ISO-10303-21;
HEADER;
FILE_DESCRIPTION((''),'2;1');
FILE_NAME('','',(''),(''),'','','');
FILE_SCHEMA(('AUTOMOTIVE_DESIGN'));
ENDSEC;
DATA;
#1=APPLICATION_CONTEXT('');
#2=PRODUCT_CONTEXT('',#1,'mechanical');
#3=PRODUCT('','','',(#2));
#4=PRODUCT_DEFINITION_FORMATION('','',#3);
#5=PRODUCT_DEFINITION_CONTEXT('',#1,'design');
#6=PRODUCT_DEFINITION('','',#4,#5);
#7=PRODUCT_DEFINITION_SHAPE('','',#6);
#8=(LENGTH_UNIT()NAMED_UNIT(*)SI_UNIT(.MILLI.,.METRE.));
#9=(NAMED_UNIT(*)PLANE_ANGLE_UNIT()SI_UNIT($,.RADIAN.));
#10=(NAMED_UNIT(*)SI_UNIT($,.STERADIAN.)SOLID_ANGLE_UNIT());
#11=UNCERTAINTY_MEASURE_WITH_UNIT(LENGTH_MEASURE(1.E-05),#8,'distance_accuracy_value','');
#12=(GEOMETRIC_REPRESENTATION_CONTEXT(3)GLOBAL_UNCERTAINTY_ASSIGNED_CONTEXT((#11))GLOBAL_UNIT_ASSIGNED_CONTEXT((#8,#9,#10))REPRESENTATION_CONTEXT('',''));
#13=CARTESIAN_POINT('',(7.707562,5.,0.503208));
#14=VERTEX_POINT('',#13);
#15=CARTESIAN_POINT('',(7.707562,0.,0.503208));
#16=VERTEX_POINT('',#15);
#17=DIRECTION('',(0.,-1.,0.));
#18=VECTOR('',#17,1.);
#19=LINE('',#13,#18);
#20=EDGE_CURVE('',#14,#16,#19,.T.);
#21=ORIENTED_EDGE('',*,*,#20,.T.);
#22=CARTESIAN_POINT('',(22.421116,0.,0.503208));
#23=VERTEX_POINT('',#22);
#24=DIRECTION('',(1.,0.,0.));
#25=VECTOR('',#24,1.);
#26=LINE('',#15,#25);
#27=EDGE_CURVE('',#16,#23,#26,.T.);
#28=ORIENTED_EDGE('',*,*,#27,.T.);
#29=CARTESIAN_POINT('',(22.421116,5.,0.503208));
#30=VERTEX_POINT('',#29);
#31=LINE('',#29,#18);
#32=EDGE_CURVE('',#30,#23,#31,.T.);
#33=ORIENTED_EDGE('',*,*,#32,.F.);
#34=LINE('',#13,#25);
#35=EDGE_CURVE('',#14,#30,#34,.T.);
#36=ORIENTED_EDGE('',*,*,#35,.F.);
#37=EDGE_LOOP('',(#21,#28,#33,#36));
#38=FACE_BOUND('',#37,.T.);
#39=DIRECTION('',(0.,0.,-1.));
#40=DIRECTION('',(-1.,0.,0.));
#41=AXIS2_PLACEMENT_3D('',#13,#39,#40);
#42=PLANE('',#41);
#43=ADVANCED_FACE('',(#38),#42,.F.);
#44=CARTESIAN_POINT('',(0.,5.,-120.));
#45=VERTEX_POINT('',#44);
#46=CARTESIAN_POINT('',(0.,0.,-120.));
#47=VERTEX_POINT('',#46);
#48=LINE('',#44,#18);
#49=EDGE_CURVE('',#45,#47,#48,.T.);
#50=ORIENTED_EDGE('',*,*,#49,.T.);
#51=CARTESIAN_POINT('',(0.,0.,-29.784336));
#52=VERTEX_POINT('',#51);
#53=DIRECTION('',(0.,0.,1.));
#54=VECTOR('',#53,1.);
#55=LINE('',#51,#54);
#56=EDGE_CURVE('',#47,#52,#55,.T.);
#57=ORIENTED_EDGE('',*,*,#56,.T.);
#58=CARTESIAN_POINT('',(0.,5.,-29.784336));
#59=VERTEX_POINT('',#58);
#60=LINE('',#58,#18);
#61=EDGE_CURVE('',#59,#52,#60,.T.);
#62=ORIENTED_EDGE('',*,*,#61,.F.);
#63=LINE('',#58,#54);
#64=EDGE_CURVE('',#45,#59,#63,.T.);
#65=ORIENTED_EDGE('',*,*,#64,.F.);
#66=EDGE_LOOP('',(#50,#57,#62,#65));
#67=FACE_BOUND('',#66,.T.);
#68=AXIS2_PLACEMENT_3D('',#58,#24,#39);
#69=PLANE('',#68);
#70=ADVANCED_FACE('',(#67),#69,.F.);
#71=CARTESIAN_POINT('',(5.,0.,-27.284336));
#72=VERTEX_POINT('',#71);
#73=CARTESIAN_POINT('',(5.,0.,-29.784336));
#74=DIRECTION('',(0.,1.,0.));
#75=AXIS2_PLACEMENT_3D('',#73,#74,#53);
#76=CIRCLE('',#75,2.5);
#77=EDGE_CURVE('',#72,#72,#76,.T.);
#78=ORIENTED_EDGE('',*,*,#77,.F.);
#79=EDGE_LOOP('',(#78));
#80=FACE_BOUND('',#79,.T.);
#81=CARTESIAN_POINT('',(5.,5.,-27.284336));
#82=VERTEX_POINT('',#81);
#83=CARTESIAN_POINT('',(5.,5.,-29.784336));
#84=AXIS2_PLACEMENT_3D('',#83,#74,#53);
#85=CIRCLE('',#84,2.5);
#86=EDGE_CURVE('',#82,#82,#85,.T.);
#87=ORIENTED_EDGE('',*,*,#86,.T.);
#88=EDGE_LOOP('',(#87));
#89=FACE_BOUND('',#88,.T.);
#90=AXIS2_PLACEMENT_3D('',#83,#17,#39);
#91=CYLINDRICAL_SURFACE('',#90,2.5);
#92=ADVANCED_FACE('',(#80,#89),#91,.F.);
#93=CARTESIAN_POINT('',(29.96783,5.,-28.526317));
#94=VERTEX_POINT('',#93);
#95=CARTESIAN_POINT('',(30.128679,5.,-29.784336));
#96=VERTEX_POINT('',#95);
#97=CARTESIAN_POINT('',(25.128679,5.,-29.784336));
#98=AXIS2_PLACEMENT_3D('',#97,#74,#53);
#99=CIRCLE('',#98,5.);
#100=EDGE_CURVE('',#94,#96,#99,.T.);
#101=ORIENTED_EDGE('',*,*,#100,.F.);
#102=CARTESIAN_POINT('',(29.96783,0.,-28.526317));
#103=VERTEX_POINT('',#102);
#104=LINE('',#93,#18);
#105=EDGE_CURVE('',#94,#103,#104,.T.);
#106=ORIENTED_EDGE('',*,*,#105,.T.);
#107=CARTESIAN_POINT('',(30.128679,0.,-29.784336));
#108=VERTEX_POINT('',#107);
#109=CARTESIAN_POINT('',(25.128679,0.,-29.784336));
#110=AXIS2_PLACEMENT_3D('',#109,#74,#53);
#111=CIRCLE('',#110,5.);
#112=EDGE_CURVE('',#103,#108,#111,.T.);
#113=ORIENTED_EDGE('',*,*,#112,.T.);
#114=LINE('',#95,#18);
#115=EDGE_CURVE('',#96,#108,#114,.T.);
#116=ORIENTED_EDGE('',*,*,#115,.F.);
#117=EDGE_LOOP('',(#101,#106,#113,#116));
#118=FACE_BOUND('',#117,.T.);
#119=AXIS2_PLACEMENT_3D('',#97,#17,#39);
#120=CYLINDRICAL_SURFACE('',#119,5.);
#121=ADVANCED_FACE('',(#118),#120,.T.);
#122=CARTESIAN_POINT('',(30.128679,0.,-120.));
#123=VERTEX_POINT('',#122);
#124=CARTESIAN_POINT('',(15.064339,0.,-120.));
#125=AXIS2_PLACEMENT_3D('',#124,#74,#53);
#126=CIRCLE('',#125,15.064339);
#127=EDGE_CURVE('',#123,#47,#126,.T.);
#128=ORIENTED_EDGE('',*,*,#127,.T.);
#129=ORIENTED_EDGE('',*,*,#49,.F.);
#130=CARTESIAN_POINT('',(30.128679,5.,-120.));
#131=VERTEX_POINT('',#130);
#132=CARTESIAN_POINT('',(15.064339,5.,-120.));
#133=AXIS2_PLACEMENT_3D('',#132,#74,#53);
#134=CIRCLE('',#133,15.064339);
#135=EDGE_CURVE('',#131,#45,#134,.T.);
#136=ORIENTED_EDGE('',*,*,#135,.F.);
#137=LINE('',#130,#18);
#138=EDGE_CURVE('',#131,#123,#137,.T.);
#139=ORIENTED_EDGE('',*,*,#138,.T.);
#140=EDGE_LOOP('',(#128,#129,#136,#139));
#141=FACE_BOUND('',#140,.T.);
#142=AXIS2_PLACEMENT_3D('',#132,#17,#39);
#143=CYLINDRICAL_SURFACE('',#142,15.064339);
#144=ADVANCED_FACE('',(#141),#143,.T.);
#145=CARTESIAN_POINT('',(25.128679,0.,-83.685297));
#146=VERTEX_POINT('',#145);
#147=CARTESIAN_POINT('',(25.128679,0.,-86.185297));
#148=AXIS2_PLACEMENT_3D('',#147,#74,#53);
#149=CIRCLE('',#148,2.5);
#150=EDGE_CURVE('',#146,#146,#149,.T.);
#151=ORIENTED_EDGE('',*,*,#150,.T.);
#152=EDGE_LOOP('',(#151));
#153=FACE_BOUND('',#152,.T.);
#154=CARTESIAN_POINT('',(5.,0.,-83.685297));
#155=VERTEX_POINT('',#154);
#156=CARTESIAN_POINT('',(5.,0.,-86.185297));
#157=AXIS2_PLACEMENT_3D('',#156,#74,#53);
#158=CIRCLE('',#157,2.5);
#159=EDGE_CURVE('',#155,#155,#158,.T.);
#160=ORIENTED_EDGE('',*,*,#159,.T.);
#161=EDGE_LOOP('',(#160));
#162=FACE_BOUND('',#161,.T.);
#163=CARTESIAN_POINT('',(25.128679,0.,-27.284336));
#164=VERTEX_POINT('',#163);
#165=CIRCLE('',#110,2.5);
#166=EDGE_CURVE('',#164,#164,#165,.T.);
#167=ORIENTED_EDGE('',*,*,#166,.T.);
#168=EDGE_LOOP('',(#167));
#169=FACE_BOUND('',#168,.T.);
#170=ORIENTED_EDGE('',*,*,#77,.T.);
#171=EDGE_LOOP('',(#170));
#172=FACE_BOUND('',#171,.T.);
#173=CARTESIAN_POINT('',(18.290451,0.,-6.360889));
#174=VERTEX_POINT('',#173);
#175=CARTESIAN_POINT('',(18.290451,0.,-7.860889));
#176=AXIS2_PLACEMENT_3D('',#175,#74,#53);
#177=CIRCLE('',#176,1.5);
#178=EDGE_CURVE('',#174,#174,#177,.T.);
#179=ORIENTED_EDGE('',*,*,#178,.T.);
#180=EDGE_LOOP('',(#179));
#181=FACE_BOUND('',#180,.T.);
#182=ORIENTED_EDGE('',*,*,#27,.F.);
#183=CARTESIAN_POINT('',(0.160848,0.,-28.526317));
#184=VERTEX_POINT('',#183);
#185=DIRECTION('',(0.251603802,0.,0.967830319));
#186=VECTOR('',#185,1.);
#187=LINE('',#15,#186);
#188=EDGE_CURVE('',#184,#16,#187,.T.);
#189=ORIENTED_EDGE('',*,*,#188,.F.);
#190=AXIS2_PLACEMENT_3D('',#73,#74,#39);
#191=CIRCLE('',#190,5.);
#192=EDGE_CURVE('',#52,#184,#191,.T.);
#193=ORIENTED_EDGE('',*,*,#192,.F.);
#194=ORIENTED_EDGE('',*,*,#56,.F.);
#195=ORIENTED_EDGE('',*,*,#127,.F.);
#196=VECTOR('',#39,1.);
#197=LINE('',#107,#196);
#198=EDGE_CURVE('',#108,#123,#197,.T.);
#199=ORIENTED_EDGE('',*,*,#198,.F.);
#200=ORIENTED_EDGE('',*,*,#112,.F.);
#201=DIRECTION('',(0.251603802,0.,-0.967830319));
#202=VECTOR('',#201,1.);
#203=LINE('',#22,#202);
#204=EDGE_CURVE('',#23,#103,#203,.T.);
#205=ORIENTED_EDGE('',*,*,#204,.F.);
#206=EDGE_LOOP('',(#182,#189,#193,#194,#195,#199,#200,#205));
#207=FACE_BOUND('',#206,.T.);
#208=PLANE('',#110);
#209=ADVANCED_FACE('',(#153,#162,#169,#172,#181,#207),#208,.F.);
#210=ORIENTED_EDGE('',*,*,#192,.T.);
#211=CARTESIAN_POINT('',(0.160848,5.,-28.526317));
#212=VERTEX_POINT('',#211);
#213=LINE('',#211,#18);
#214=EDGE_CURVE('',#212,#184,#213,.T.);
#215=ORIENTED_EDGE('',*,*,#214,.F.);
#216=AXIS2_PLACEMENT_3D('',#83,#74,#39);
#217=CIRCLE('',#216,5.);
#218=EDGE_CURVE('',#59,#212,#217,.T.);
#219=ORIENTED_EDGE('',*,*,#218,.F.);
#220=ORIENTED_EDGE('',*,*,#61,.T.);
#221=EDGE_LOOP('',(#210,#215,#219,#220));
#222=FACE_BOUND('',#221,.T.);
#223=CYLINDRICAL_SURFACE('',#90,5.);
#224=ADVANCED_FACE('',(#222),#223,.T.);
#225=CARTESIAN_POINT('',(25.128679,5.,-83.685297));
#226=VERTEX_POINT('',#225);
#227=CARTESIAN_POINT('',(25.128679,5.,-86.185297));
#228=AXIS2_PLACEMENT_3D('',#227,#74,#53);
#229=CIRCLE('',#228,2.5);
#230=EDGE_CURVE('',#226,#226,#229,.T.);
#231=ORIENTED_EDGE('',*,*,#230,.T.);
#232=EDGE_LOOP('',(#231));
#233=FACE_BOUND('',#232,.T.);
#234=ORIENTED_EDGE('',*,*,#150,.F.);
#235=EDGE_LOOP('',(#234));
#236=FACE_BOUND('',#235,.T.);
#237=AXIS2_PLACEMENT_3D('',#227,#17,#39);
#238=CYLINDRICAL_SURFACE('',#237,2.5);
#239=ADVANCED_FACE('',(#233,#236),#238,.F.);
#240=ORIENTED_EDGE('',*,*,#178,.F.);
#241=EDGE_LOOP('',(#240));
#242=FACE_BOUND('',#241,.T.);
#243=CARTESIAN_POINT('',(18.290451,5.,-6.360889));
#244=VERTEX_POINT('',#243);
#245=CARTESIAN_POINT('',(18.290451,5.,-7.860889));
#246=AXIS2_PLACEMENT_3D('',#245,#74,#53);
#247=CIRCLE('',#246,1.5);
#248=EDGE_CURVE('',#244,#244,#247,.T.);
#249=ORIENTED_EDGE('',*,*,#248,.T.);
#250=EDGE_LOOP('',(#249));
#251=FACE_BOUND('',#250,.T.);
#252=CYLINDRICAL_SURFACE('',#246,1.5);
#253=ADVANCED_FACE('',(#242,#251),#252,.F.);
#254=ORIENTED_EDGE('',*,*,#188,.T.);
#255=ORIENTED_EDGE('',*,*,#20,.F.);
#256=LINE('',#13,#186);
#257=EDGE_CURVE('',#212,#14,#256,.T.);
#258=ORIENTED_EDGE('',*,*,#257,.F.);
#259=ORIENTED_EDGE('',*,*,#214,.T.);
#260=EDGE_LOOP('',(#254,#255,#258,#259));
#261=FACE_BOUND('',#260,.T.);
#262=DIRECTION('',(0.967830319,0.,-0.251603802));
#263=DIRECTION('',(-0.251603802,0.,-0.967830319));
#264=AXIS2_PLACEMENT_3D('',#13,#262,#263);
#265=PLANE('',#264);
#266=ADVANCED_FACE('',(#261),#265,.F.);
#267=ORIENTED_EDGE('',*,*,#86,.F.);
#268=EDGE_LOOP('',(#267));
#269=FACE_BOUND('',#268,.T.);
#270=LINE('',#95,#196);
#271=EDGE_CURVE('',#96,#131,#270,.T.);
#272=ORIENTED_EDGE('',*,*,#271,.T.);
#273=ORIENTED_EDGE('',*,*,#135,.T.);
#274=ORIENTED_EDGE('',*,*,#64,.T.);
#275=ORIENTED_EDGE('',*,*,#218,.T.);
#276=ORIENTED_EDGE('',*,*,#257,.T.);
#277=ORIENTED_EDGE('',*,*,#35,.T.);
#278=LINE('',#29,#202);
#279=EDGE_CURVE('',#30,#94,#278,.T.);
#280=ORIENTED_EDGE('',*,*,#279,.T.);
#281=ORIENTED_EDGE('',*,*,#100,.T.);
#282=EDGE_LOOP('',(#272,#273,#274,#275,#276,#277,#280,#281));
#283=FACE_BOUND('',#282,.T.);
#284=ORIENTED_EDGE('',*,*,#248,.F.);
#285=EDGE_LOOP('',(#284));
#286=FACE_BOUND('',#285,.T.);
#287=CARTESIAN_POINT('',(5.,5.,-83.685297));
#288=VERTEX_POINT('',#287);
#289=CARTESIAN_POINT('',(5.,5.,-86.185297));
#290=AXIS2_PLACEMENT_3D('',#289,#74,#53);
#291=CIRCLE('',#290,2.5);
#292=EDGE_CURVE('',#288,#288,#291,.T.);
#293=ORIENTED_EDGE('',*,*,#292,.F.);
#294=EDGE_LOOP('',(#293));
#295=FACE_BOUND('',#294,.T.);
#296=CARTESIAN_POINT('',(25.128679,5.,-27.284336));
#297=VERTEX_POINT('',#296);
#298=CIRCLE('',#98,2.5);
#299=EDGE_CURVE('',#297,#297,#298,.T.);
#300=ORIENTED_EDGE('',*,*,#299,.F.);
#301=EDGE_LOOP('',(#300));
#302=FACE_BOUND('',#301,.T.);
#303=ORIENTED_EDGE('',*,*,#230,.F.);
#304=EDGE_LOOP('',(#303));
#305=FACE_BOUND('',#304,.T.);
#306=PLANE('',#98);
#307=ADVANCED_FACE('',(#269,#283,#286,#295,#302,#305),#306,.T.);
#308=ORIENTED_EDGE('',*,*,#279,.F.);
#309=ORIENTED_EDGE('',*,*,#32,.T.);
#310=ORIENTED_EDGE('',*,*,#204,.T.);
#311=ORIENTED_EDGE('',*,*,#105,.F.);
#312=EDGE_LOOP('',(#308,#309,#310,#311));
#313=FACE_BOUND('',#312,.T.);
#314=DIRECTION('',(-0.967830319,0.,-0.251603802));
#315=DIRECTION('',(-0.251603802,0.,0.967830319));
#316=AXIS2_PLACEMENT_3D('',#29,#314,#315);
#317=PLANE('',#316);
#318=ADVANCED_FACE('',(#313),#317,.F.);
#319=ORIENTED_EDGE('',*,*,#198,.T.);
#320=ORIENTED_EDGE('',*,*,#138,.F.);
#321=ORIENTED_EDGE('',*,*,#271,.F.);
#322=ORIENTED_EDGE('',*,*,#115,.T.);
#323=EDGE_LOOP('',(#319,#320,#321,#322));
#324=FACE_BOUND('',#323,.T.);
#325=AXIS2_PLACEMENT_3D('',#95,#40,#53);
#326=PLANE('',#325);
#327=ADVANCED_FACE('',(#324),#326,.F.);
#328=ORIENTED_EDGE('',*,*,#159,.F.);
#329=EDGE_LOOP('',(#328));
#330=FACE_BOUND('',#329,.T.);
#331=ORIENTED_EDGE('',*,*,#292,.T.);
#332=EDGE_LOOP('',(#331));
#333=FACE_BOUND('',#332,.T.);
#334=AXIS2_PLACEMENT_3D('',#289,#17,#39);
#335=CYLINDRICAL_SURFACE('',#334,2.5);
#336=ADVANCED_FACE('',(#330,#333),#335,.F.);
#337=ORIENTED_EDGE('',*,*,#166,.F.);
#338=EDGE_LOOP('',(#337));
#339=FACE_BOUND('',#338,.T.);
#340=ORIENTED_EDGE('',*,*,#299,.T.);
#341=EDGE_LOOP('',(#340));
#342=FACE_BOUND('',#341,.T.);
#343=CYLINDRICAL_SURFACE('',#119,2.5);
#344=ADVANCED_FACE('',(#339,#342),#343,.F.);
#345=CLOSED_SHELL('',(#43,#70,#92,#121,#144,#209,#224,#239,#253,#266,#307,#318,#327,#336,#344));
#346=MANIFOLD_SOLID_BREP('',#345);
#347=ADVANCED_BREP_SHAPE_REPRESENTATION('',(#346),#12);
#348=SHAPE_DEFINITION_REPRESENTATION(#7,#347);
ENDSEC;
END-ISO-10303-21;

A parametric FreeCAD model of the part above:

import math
import FreeCAD as App
import Part
import Sketcher

doc = App.newDocument("Part")
params = doc.addObject("Spreadsheet::Sheet", "Params")
for row, (alias, value) in enumerate([
    ("sketch1_diameter", "5 mm"),
    ("sketch1_diameter2", "5 mm"),
    ("sketch1_diameter3", "5 mm"),
    ("sketch1_diameter4", "5 mm"),
    ("sketch1_radius", "5 mm"),
    ("pad1_length", "5 mm"),
    ("sketch2_diameter", "3 mm"),
    ("hole_diameter", "3 mm"),
], start=1):
    params.set(f"A{row}", alias)
    params.set(f"B{row}", "=" + value)
    params.setAlias(f"B{row}", alias)

body = doc.addObject("PartDesign::Body", "Body")

sketch1 = doc.addObject("Sketcher::SketchObject", "Sketch")
body.addObject(sketch1)
sketch1.AttachmentSupport = (doc.XZ_Plane, [""])
sketch1.MapMode = "FlatFace"
sketch1.addGeometry([
    Part.LineSegment(App.Vector(0.160848, -28.526317, 0), App.Vector(7.707562, 0.503208, 0)),
    Part.LineSegment(App.Vector(7.707562, 0.503208, 0), App.Vector(22.421116, 0.503208, 0)),
    Part.LineSegment(App.Vector(22.421116, 0.503208, 0), App.Vector(29.96783, -28.526317, 0)),
    Part.ArcOfCircle(Part.Circle(App.Vector(25.128679, -29.784336, 0), App.Vector(0, 0, 1), 5), math.radians(0), math.radians(14.572437)),
    Part.LineSegment(App.Vector(30.128679, -29.784336, 0), App.Vector(30.128679, -120, 0)),
    Part.ArcOfCircle(Part.Circle(App.Vector(15.064339, -120, 0), App.Vector(0, 0, 1), 15.064339), math.radians(180), math.radians(360)),
    Part.LineSegment(App.Vector(0, -120, 0), App.Vector(0, -29.784336, 0)),
    Part.ArcOfCircle(Part.Circle(App.Vector(5, -29.784336, 0), App.Vector(0, 0, 1), 5), math.radians(165.427563), math.radians(180)),
    Part.Circle(App.Vector(25.128679, -29.784336, 0), App.Vector(0, 0, 1), 2.5),
    Part.Circle(App.Vector(5, -29.784336, 0), App.Vector(0, 0, 1), 2.5),
    Part.Circle(App.Vector(25.128679, -86.185297, 0), App.Vector(0, 0, 1), 2.5),
    Part.Circle(App.Vector(5, -86.185297, 0), App.Vector(0, 0, 1), 2.5),
], False)
sketch1.addConstraint([
    Sketcher.Constraint("Coincident", 0, 2, 1, 1),
    Sketcher.Constraint("Coincident", 1, 2, 2, 1),
    Sketcher.Constraint("Coincident", 2, 2, 3, 2),
    Sketcher.Constraint("Coincident", 3, 1, 4, 1),
    Sketcher.Constraint("Coincident", 4, 2, 5, 2),
    Sketcher.Constraint("Coincident", 5, 1, 6, 1),
    Sketcher.Constraint("Coincident", 6, 2, 7, 2),
    Sketcher.Constraint("Coincident", 7, 1, 0, 1),
    Sketcher.Constraint("Horizontal", 1),
    Sketcher.Constraint("Vertical", 4),
    Sketcher.Constraint("Vertical", 6),
    Sketcher.Constraint("Coincident", 8, 3, 3, 3),
    Sketcher.Constraint("Coincident", 9, 3, 7, 3),
    Sketcher.Constraint("PointOnObject", 5, 1, -2),
    Sketcher.Constraint("Diameter", 8, 5.0),
    Sketcher.Constraint("Diameter", 9, 5.0),
    Sketcher.Constraint("Diameter", 10, 5.0),
    Sketcher.Constraint("Diameter", 11, 5.0),
    Sketcher.Constraint("Radius", 3, 5.0),
    Sketcher.Constraint("Radius", 7, 5.0),
    Sketcher.Constraint("DistanceY", 5, 3, -1, 1, 120.0),
    Sketcher.Constraint("DistanceX", -1, 1, 11, 3, 5.0),
    Sketcher.Constraint("DistanceY", 4, 2, -1, 1, 120.0),
    Sketcher.Constraint("DistanceY", 5, 1, -1, 1, 120.0),
    Sketcher.Constraint("DistanceX", 10, 3, 4, 2, 5.0),
    Sketcher.Constraint("Radius", 5, 15.064339),
    Sketcher.Constraint("DistanceX", 1, 1, 1, 2, 14.713554),
    Sketcher.Constraint("DistanceY", 4, 2, 4, 1, 90.215664),
    Sketcher.Constraint("DistanceY", 6, 1, 6, 2, 90.215664),
    Sketcher.Constraint("DistanceX", -1, 1, 2, 2, 29.96783),
    Sketcher.Constraint("DistanceX", -1, 1, 7, 1, 0.160848),
    Sketcher.Constraint("DistanceY", 10, 3, 3, 3, 56.400961),
    Sketcher.Constraint("DistanceY", 10, 3, 7, 3, 56.400961),
    Sketcher.Constraint("DistanceY", 11, 3, 7, 3, 56.400961),
    Sketcher.Constraint("DistanceY", 3, 1, 2, 2, 1.258019),
    Sketcher.Constraint("Distance", 0, 29.994436),
    Sketcher.Constraint("Distance", 2, 29.994436),
])
sketch1.setExpression("Constraints[14]", "Params.sketch1_diameter")
sketch1.setExpression("Constraints[15]", "Params.sketch1_diameter2")
sketch1.setExpression("Constraints[16]", "Params.sketch1_diameter3")
sketch1.setExpression("Constraints[17]", "Params.sketch1_diameter4")
sketch1.setExpression("Constraints[18]", "Params.sketch1_radius")
pad1 = doc.addObject("PartDesign::Pad", "Pad")
body.addObject(pad1)
pad1.Profile = sketch1
pad1.setExpression("Length", "Params.pad1_length")
pad1.Reversed = True

sketch2 = doc.addObject("Sketcher::SketchObject", "Sketch001")
body.addObject(sketch2)
sketch2.AttachmentSupport = (doc.XZ_Plane, [""])
sketch2.MapMode = "FlatFace"
sketch2.AttachmentOffset = App.Placement(App.Vector(0, 0, -5), App.Rotation())
sketch2.addGeometry(Part.Circle(App.Vector(18.3, -7.9, 0), App.Vector(0, 0, 1), 1.5), False)
sketch2.addConstraint([
    Sketcher.Constraint("Diameter", 0, 3.0),
    Sketcher.Constraint("DistanceX", -1, 1, 0, 3, 18.290451),
    Sketcher.Constraint("DistanceY", 0, 3, -1, 1, 7.860889),
])
sketch2.setExpression("Constraints[0]", "Params.sketch2_diameter")
doc.recompute()
hole = doc.addObject("PartDesign::Hole", "Hole")
body.addObject(hole)
hole.Profile = sketch2
hole.ThreadType = "None"
hole.setExpression("Diameter", "Params.hole_diameter")
hole.DepthType = "ThroughAll"
hole.Reversed = True

doc.recompute()
